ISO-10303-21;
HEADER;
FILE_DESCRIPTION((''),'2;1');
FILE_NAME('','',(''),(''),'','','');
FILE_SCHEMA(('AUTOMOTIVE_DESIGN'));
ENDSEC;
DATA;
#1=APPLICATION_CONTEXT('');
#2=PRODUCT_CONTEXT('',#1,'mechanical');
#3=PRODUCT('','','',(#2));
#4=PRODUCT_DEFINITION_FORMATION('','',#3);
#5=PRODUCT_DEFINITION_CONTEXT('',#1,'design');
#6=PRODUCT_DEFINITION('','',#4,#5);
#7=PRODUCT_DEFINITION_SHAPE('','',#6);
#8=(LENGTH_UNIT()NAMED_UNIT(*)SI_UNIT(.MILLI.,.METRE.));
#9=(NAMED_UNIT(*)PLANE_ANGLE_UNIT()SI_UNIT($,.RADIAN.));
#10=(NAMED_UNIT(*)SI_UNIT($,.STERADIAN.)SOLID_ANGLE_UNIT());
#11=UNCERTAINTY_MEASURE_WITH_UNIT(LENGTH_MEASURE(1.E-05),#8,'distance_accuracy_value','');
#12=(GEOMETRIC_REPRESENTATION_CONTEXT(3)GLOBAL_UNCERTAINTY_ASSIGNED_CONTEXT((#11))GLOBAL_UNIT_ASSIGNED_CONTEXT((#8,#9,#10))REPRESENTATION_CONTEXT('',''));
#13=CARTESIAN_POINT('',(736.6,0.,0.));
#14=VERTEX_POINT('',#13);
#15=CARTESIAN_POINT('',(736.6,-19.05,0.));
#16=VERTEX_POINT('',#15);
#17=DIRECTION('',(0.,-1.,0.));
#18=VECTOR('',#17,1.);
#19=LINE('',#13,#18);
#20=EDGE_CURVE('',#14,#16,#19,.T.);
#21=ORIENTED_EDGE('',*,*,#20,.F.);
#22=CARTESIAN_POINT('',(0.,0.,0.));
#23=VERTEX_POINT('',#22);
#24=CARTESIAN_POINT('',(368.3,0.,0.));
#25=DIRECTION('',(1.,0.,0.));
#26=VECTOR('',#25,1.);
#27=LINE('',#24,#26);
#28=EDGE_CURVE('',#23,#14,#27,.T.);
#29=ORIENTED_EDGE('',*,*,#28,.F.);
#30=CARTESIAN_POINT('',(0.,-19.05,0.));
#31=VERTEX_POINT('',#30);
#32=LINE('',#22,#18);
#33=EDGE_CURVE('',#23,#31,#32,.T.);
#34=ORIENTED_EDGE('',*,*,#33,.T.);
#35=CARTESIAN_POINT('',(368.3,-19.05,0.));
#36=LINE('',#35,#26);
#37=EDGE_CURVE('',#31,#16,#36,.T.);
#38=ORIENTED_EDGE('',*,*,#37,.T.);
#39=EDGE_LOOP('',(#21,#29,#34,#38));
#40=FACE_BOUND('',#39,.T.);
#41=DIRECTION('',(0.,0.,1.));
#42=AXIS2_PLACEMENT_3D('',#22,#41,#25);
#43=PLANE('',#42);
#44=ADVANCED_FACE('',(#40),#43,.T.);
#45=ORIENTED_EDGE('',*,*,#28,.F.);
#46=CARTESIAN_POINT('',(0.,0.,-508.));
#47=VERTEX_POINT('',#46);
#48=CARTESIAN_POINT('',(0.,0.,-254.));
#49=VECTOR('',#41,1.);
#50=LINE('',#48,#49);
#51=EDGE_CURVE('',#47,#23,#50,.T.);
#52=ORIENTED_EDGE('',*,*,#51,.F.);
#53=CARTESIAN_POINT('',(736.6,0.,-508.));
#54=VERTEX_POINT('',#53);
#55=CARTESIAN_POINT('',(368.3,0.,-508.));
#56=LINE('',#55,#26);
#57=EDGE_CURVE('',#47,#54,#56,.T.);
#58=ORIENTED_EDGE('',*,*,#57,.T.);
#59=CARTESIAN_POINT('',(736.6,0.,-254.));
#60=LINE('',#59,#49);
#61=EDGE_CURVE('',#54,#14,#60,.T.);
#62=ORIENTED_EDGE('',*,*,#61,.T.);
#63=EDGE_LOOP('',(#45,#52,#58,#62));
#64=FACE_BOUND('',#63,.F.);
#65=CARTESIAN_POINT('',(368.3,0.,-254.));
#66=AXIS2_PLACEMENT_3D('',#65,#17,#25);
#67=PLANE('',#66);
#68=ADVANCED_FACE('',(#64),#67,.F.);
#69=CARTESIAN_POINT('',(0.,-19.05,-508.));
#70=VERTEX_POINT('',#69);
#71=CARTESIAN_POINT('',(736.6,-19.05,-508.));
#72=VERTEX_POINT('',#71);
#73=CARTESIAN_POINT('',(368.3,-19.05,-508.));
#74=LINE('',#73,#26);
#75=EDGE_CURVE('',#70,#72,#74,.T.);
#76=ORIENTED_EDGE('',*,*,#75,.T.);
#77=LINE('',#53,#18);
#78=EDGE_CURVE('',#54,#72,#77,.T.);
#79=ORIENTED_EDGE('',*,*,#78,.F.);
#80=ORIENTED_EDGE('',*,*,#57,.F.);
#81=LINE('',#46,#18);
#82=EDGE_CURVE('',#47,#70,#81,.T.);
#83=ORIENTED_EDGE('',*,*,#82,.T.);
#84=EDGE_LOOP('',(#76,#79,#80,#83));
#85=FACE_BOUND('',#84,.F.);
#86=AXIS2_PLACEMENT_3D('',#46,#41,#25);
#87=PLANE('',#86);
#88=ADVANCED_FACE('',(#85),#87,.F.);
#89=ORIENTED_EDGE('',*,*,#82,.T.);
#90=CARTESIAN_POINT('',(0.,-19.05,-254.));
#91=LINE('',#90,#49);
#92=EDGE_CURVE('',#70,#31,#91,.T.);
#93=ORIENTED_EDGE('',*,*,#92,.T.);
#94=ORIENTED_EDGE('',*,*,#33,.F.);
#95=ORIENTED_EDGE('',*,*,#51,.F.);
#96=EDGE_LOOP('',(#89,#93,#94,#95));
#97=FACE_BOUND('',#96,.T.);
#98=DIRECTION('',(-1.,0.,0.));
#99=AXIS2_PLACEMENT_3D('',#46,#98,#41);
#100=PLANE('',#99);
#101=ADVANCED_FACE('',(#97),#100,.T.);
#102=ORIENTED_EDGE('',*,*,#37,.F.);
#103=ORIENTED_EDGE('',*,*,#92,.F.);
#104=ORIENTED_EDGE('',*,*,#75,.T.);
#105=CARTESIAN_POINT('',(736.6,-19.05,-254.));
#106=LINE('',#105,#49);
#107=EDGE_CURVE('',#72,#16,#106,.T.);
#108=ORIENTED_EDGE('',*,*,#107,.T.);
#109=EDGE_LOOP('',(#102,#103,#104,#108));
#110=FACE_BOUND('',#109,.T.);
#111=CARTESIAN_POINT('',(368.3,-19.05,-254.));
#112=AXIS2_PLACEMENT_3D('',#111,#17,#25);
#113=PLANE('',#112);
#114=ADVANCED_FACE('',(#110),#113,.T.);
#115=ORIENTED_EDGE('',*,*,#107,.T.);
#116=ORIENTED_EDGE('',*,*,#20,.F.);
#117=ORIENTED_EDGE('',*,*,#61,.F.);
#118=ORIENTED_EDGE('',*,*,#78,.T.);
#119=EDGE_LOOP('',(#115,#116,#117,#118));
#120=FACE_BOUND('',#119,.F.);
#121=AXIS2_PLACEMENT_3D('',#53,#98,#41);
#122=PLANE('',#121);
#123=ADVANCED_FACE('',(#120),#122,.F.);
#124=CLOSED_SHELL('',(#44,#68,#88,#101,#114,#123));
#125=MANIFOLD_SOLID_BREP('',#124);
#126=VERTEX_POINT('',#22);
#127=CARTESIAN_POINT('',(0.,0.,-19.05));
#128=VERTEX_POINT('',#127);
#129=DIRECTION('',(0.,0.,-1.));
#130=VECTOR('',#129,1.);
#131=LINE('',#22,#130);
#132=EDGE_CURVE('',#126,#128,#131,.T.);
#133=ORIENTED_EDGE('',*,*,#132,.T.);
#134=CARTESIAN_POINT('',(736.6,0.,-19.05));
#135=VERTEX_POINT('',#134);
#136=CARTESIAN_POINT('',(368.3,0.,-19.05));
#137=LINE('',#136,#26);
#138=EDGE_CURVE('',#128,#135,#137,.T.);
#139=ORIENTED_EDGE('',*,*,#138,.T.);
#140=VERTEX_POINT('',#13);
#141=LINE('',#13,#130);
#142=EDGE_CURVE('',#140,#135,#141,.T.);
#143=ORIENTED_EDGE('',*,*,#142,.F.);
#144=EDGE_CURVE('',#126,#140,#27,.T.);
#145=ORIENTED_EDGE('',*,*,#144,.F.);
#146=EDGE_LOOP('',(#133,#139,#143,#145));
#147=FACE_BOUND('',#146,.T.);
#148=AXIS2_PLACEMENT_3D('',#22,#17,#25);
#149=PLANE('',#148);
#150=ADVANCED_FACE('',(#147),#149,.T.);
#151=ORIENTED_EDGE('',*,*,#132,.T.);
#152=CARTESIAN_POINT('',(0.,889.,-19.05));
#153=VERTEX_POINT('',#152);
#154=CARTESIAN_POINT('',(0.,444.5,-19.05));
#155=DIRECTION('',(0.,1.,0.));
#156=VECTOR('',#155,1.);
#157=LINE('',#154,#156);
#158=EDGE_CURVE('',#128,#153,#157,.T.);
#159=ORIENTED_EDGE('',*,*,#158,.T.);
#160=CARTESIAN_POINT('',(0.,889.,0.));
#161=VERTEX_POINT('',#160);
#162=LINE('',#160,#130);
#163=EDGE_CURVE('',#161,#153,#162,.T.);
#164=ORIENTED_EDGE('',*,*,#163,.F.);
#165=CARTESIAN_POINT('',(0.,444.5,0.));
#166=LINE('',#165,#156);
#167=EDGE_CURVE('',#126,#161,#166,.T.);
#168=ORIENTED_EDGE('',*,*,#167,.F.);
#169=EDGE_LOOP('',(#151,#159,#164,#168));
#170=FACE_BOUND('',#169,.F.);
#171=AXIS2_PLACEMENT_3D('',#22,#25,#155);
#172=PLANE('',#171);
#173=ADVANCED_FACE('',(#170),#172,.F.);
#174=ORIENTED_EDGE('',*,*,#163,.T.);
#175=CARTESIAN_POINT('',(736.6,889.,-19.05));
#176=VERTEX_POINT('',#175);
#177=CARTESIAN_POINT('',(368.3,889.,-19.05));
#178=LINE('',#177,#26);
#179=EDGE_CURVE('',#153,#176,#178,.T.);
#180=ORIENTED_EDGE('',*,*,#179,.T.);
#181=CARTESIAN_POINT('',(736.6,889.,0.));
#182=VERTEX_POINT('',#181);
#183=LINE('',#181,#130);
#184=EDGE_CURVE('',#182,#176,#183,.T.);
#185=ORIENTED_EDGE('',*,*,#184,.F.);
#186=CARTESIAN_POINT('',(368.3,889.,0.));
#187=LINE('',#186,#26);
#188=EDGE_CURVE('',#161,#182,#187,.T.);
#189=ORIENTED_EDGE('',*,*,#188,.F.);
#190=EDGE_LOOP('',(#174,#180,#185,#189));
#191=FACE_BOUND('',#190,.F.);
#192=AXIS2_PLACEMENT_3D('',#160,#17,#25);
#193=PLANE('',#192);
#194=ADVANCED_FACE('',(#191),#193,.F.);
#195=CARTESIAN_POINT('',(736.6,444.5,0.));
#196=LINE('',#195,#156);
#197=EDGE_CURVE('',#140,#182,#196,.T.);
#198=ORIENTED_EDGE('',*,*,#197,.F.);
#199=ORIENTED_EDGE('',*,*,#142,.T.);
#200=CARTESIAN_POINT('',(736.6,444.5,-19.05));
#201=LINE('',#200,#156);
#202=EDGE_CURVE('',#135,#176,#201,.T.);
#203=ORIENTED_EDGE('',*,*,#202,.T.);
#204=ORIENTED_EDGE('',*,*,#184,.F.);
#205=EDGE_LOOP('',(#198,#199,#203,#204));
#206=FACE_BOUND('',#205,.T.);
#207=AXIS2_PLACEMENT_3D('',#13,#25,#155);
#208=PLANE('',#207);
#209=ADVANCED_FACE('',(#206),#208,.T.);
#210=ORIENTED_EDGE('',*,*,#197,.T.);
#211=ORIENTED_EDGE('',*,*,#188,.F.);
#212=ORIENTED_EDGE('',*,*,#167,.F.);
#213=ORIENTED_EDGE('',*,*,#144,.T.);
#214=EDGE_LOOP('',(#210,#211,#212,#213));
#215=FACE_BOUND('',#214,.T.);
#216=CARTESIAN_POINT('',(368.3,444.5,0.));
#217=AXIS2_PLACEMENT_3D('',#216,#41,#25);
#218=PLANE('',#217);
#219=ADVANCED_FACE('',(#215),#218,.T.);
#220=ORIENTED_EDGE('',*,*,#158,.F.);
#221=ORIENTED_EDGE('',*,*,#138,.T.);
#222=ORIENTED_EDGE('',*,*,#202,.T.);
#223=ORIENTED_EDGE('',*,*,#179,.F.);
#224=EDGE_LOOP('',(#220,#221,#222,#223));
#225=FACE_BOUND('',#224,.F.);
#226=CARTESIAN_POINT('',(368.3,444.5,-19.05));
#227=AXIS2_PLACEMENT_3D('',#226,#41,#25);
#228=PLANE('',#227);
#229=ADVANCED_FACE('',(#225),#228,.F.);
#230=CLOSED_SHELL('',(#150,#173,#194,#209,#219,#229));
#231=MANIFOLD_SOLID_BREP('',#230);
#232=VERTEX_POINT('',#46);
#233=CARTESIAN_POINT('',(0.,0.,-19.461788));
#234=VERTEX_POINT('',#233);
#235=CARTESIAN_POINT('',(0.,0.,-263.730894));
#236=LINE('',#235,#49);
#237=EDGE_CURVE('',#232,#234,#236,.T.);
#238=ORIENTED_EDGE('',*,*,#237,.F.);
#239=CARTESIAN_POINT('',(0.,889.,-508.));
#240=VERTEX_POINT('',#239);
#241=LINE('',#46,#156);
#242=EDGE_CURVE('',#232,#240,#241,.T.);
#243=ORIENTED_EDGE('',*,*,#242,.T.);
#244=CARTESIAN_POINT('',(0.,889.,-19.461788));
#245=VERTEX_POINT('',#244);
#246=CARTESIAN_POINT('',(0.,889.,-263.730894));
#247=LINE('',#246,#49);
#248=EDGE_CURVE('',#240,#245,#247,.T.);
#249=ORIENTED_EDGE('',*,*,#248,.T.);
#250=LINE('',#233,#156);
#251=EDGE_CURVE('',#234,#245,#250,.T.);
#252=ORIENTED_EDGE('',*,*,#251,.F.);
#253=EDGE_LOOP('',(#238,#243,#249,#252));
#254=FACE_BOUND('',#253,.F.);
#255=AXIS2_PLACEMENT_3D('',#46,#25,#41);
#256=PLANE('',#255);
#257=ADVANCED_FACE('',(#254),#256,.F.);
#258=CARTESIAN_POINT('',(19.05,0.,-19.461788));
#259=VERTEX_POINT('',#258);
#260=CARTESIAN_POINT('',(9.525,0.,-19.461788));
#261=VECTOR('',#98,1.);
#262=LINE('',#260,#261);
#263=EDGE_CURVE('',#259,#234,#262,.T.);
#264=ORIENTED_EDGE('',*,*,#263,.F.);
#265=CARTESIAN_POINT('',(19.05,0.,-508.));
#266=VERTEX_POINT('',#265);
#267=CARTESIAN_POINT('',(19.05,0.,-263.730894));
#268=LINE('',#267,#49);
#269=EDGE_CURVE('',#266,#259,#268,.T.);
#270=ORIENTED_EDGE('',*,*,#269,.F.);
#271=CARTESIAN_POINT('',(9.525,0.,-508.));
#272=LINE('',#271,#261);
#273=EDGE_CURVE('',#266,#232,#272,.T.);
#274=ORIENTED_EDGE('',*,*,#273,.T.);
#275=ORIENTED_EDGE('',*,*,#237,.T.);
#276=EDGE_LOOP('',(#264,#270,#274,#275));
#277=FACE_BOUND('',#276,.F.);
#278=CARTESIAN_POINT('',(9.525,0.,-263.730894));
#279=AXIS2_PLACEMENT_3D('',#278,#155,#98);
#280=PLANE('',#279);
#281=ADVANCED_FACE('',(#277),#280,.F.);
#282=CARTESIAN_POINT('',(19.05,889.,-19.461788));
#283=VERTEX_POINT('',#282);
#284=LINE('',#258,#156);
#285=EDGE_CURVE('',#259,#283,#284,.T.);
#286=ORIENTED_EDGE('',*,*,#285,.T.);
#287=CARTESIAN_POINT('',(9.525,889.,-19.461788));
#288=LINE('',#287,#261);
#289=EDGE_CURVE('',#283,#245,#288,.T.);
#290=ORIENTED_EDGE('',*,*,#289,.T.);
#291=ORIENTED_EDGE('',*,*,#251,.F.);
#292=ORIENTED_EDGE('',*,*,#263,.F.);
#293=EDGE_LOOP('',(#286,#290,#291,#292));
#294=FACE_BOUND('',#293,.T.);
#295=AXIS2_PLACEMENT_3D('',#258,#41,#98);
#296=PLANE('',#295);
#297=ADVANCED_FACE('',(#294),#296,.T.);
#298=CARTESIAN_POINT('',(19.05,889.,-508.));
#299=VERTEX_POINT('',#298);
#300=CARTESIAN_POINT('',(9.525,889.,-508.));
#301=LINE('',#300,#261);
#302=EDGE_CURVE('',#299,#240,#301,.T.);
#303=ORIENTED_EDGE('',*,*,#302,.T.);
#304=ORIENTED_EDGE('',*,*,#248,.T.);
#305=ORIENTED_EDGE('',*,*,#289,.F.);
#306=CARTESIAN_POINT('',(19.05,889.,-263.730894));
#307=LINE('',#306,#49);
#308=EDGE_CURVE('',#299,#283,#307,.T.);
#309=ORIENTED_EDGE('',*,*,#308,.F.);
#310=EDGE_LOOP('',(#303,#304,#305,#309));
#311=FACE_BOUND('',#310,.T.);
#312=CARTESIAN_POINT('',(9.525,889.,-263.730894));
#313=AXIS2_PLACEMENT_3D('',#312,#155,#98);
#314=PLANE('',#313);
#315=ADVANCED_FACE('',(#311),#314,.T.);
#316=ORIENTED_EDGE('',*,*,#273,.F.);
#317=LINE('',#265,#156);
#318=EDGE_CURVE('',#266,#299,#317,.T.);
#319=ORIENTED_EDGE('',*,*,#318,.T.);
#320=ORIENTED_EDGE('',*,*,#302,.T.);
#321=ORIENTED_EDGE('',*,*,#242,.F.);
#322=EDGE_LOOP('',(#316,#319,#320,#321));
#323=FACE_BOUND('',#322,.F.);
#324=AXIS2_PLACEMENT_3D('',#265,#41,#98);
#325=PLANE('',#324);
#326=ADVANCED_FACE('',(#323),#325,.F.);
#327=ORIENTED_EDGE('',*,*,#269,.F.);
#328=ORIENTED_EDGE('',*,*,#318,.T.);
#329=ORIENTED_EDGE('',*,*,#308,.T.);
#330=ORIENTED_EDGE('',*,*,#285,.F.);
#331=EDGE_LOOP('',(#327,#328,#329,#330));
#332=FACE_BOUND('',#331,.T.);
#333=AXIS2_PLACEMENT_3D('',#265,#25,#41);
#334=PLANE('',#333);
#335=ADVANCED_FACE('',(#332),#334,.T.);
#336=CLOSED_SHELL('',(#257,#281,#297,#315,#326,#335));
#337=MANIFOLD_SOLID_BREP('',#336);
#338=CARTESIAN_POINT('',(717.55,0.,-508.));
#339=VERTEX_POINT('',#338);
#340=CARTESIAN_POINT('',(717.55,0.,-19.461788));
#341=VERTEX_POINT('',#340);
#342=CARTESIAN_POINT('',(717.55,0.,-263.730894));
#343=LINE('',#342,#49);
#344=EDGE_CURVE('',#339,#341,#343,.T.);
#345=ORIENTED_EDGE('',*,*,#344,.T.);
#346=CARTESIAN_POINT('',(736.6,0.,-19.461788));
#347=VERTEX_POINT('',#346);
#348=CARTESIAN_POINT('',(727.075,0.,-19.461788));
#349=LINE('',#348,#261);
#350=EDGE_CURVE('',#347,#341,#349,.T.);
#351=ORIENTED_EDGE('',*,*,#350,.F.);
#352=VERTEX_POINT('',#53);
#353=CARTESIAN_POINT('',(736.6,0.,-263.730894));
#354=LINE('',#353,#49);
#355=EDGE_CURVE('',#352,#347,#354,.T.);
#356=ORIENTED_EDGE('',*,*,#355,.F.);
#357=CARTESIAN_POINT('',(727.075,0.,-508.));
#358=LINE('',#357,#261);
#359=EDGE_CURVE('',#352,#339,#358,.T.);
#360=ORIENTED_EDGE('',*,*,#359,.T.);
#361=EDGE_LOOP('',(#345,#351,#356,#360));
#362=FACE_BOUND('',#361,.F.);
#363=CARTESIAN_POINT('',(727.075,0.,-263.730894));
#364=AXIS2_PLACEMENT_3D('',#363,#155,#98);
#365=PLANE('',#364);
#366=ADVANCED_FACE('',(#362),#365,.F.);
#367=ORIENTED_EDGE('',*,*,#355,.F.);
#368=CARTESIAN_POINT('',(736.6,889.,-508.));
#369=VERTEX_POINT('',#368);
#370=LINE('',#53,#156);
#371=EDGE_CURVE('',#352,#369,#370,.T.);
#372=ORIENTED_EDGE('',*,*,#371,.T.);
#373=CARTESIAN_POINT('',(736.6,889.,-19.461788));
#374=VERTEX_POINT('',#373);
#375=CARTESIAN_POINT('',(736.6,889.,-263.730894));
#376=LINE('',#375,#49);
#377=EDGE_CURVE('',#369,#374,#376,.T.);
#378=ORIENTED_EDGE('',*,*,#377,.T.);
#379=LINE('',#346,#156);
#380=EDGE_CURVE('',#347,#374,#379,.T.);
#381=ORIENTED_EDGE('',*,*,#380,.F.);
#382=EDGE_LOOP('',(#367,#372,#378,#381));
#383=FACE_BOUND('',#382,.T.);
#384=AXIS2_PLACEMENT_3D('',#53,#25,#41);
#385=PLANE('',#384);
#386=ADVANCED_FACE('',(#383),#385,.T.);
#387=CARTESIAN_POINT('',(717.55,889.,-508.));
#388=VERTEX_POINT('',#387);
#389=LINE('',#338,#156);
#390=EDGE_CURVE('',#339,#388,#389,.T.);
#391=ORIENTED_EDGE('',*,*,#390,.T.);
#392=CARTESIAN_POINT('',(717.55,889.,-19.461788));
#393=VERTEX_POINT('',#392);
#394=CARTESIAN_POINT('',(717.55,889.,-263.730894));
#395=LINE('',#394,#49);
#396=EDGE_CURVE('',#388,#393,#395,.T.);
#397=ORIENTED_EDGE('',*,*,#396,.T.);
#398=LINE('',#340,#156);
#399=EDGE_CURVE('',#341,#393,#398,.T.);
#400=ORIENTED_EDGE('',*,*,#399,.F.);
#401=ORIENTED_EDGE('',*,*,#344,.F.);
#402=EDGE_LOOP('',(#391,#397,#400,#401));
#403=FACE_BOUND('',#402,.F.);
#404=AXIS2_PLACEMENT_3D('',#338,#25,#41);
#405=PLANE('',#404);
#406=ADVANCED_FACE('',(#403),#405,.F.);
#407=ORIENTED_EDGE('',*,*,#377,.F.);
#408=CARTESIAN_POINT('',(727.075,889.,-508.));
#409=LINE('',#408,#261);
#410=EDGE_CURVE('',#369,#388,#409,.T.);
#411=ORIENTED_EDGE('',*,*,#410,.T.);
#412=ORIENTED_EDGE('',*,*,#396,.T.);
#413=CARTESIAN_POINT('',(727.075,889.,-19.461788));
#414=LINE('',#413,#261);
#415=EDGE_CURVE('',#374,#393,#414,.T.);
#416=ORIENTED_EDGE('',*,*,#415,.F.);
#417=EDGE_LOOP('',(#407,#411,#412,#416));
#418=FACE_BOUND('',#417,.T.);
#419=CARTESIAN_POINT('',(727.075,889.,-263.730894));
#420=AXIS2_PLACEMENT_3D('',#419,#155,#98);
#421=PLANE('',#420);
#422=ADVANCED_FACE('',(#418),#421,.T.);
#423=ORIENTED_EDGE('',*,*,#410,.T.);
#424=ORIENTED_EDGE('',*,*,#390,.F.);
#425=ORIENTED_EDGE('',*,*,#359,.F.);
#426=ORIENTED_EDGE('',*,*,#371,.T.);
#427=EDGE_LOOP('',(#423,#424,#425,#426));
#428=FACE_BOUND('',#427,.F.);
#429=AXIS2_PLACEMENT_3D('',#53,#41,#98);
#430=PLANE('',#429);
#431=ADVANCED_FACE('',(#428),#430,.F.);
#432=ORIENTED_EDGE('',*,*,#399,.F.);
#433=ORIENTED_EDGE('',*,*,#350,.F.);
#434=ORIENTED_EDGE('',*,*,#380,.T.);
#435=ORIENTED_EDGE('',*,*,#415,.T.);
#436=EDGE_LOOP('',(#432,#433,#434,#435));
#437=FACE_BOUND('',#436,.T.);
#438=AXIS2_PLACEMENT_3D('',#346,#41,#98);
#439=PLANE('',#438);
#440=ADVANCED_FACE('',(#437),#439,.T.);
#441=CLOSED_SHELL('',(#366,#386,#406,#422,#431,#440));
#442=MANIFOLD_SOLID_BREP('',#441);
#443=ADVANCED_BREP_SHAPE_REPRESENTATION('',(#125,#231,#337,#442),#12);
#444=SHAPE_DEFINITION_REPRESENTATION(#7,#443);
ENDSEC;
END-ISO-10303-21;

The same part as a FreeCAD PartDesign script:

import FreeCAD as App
import Part
import Sketcher
from FreeCAD import Vector
Q = App.Units.Quantity


def add_polygon(sketch, points):
    """Adds a closed chain of lines whose ends are joined by coincident constraints."""
    first, n = sketch.GeometryCount, len(points)
    for a, b in zip(points, points[1:] + points[:1]):
        sketch.addGeometry(Part.LineSegment(App.Vector(*a, 0), App.Vector(*b, 0)), False)
    for i in range(n):
        sketch.addConstraint(Sketcher.Constraint("Coincident", first + i, 2, first + (i + 1) % n, 1))

doc = App.newDocument("Part")
body = doc.addObject("PartDesign::Body", "Body")

# Sketch on XY plane
sketch1 = body.newObject("Sketcher::SketchObject", "Sketch")
sketch1.AttachmentSupport = (doc.getObject("XY_Plane"), [""])
sketch1.MapMode = "FlatFace"
add_polygon(sketch1, [(0, 889), (0, 0), (737, 0), (737, 889)])  # lines 0-3
sketch1.addConstraint(Sketcher.Constraint("Vertical", 0))
sketch1.addConstraint(Sketcher.Constraint("Horizontal", 1))
sketch1.addConstraint(Sketcher.Constraint("Vertical", 2))
sketch1.addConstraint(Sketcher.Constraint("Horizontal", 3))
sketch1.addConstraint(Sketcher.Constraint("Coincident", 0, 2, -1, 1))
sketch1.addConstraint(Sketcher.Constraint("DistanceX", 1, 1, 1, 2, Q("29 in")))
sketch1.addConstraint(Sketcher.Constraint("DistanceY", 0, 2, 0, 1, Q("35 in")))
pad1 = body.newObject("PartDesign::Pad", "Pad")
pad1.Profile = sketch1
pad1.Length = Q("0.75 in")
pad1.Reversed = True
body2 = doc.addObject("PartDesign::Body", "Body001")

# Sketch on XZ plane
sketch2 = body2.newObject("Sketcher::SketchObject", "Sketch001")
sketch2.AttachmentSupport = (doc.getObject("XZ_Plane001"), [""])
sketch2.MapMode = "FlatFace"
add_polygon(sketch2, [(0, 0), (0, -508), (737, -508), (737, 0)])  # lines 0-3
sketch2.addConstraint(Sketcher.Constraint("Vertical", 0))
sketch2.addConstraint(Sketcher.Constraint("Horizontal", 1))
sketch2.addConstraint(Sketcher.Constraint("Vertical", 2))
sketch2.addConstraint(Sketcher.Constraint("Horizontal", 3))
sketch2.addConstraint(Sketcher.Constraint("Coincident", 3, 2, -1, 1))
sketch2.addConstraint(Sketcher.Constraint("DistanceX", 1, 1, 1, 2, Q("29 in")))
sketch2.addConstraint(Sketcher.Constraint("DistanceY", 0, 2, 0, 1, Q("20 in")))
pad2 = body2.newObject("PartDesign::Pad", "Pad001")
pad2.Profile = sketch2
pad2.Length = Q("0.75 in")
body3 = doc.addObject("PartDesign::Body", "Body002")
body3.AllowCompound = True

# Sketch on XZ plane
sketch3 = body3.newObject("Sketcher::SketchObject", "Sketch002")
sketch3.AttachmentSupport = (doc.getObject("XZ_Plane002"), [""])
sketch3.MapMode = "FlatFace"
add_polygon(sketch3, [(19, -19), (19, -508), (0, -508), (0, -19)])  # lines 0-3
add_polygon(sketch3, [(737, -19), (737, -508), (718, -508), (718, -19)])  # lines 4-7
sketch3.addConstraint(Sketcher.Constraint("Vertical", 0))
sketch3.addConstraint(Sketcher.Constraint("Horizontal", 1))
sketch3.addConstraint(Sketcher.Constraint("Vertical", 2))
sketch3.addConstraint(Sketcher.Constraint("Horizontal", 3))
sketch3.addConstraint(Sketcher.Constraint("Vertical", 4))
sketch3.addConstraint(Sketcher.Constraint("Horizontal", 5))
sketch3.addConstraint(Sketcher.Constraint("Vertical", 6))
sketch3.addConstraint(Sketcher.Constraint("Horizontal", 7))
sketch3.addConstraint(Sketcher.Constraint("PointOnObject", 1, 2, -2))
sketch3.addConstraint(Sketcher.Constraint("Horizontal", 1, 2, 4, 2))
sketch3.addConstraint(Sketcher.Constraint("Horizontal", 3, 2, 6, 2))
sketch3.addConstraint(Sketcher.Constraint("Equal", 3, 5))
sketch3.addConstraint(Sketcher.Constraint("DistanceY", 0, 2, -1, 1, Q("20 in")))
sketch3.addConstraint(Sketcher.Constraint("DistanceX", -1, 1, 4, 2, Q("29 in")))
sketch3.addConstraint(Sketcher.Constraint("DistanceX", 1, 2, 1, 1, Q("0.75 in")))
sketch3.addConstraint(Sketcher.Constraint("DistanceY", 0, 2, 0, 1, Q("488.538212 mm")))
pad3 = body3.newObject("PartDesign::Pad", "Pad002")
pad3.Profile = sketch3
pad3.Length = Q("35 in")
pad3.Reversed = True

doc.recompute()
